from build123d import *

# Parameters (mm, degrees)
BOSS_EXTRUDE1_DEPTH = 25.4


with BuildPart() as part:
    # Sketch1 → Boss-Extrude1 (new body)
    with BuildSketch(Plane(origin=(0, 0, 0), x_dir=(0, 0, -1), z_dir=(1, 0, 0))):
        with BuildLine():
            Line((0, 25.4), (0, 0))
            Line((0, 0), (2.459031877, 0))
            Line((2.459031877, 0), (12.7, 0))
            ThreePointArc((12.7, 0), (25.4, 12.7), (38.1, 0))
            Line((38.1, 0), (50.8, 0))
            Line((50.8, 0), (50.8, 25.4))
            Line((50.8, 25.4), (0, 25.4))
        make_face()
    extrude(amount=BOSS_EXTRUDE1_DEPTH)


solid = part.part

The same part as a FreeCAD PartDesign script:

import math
import FreeCAD as App
import Part
import Sketcher
Q = App.Units.Quantity

doc = App.newDocument("Part")
body = doc.addObject("PartDesign::Body", "Body")

# Sketch on YZ plane
sketch1 = body.newObject("Sketcher::SketchObject", "Sketch")
sketch1.AttachmentSupport = (doc.getObject("YZ_Plane"), [""])
sketch1.MapMode = "FlatFace"
sketch1.addGeometry(Part.LineSegment(App.Vector(25, 0, 0), App.Vector(0, 0, 0)), False)
sketch1.addGeometry(Part.LineSegment(App.Vector(0, 0, 0), App.Vector(0, -13, 0)), False)
sketch1.addGeometry(Part.ArcOfCircle(Part.Circle(App.Vector(0, -25, 0), App.Vector(0, 0, 1), 13), math.radians(-90), math.radians(90)), False)
sketch1.addGeometry(Part.LineSegment(App.Vector(0, -38, 0), App.Vector(0, -51, 0)), False)
sketch1.addGeometry(Part.LineSegment(App.Vector(0, -51, 0), App.Vector(25, -51, 0)), False)
sketch1.addGeometry(Part.LineSegment(App.Vector(25, -51, 0), App.Vector(25, 0, 0)), False)
sketch1.addConstraint(Sketcher.Constraint("Coincident", 0, 2, 1, 1))
sketch1.addConstraint(Sketcher.Constraint("Coincident", 1, 2, 2, 2))
sketch1.addConstraint(Sketcher.Constraint("Coincident", 2, 1, 3, 1))
sketch1.addConstraint(Sketcher.Constraint("Coincident", 3, 2, 4, 1))
sketch1.addConstraint(Sketcher.Constraint("Coincident", 4, 2, 5, 1))
sketch1.addConstraint(Sketcher.Constraint("Coincident", 5, 2, 0, 1))
sketch1.addConstraint(Sketcher.Constraint("Horizontal", 0))
sketch1.addConstraint(Sketcher.Constraint("Vertical", 1))
sketch1.addConstraint(Sketcher.Constraint("Vertical", 3))
sketch1.addConstraint(Sketcher.Constraint("Horizontal", 4))
sketch1.addConstraint(Sketcher.Constraint("Vertical", 5))
sketch1.addConstraint(Sketcher.Constraint("Coincident", 0, 2, -1, 1))
sketch1.addConstraint(Sketcher.Constraint("PointOnObject", 2, 3, -2))
sketch1.addConstraint(Sketcher.Constraint("PointOnObject", 2, 1, -2))
sketch1.addConstraint(Sketcher.Constraint("Equal", 1, 3))
sketch1.addConstraint(Sketcher.Constraint("Radius", 2, Q("0.5 in")))
sketch1.addConstraint(Sketcher.Constraint("DistanceX", 0, 2, 0, 1, Q("1 in")))
sketch1.addConstraint(Sketcher.Constraint("DistanceY", 5, 1, 5, 2, Q("2 in")))
pad1 = body.newObject("PartDesign::Pad", "Pad")
pad1.Profile = sketch1
pad1.Length = Q("1 in")

doc.recompute()
